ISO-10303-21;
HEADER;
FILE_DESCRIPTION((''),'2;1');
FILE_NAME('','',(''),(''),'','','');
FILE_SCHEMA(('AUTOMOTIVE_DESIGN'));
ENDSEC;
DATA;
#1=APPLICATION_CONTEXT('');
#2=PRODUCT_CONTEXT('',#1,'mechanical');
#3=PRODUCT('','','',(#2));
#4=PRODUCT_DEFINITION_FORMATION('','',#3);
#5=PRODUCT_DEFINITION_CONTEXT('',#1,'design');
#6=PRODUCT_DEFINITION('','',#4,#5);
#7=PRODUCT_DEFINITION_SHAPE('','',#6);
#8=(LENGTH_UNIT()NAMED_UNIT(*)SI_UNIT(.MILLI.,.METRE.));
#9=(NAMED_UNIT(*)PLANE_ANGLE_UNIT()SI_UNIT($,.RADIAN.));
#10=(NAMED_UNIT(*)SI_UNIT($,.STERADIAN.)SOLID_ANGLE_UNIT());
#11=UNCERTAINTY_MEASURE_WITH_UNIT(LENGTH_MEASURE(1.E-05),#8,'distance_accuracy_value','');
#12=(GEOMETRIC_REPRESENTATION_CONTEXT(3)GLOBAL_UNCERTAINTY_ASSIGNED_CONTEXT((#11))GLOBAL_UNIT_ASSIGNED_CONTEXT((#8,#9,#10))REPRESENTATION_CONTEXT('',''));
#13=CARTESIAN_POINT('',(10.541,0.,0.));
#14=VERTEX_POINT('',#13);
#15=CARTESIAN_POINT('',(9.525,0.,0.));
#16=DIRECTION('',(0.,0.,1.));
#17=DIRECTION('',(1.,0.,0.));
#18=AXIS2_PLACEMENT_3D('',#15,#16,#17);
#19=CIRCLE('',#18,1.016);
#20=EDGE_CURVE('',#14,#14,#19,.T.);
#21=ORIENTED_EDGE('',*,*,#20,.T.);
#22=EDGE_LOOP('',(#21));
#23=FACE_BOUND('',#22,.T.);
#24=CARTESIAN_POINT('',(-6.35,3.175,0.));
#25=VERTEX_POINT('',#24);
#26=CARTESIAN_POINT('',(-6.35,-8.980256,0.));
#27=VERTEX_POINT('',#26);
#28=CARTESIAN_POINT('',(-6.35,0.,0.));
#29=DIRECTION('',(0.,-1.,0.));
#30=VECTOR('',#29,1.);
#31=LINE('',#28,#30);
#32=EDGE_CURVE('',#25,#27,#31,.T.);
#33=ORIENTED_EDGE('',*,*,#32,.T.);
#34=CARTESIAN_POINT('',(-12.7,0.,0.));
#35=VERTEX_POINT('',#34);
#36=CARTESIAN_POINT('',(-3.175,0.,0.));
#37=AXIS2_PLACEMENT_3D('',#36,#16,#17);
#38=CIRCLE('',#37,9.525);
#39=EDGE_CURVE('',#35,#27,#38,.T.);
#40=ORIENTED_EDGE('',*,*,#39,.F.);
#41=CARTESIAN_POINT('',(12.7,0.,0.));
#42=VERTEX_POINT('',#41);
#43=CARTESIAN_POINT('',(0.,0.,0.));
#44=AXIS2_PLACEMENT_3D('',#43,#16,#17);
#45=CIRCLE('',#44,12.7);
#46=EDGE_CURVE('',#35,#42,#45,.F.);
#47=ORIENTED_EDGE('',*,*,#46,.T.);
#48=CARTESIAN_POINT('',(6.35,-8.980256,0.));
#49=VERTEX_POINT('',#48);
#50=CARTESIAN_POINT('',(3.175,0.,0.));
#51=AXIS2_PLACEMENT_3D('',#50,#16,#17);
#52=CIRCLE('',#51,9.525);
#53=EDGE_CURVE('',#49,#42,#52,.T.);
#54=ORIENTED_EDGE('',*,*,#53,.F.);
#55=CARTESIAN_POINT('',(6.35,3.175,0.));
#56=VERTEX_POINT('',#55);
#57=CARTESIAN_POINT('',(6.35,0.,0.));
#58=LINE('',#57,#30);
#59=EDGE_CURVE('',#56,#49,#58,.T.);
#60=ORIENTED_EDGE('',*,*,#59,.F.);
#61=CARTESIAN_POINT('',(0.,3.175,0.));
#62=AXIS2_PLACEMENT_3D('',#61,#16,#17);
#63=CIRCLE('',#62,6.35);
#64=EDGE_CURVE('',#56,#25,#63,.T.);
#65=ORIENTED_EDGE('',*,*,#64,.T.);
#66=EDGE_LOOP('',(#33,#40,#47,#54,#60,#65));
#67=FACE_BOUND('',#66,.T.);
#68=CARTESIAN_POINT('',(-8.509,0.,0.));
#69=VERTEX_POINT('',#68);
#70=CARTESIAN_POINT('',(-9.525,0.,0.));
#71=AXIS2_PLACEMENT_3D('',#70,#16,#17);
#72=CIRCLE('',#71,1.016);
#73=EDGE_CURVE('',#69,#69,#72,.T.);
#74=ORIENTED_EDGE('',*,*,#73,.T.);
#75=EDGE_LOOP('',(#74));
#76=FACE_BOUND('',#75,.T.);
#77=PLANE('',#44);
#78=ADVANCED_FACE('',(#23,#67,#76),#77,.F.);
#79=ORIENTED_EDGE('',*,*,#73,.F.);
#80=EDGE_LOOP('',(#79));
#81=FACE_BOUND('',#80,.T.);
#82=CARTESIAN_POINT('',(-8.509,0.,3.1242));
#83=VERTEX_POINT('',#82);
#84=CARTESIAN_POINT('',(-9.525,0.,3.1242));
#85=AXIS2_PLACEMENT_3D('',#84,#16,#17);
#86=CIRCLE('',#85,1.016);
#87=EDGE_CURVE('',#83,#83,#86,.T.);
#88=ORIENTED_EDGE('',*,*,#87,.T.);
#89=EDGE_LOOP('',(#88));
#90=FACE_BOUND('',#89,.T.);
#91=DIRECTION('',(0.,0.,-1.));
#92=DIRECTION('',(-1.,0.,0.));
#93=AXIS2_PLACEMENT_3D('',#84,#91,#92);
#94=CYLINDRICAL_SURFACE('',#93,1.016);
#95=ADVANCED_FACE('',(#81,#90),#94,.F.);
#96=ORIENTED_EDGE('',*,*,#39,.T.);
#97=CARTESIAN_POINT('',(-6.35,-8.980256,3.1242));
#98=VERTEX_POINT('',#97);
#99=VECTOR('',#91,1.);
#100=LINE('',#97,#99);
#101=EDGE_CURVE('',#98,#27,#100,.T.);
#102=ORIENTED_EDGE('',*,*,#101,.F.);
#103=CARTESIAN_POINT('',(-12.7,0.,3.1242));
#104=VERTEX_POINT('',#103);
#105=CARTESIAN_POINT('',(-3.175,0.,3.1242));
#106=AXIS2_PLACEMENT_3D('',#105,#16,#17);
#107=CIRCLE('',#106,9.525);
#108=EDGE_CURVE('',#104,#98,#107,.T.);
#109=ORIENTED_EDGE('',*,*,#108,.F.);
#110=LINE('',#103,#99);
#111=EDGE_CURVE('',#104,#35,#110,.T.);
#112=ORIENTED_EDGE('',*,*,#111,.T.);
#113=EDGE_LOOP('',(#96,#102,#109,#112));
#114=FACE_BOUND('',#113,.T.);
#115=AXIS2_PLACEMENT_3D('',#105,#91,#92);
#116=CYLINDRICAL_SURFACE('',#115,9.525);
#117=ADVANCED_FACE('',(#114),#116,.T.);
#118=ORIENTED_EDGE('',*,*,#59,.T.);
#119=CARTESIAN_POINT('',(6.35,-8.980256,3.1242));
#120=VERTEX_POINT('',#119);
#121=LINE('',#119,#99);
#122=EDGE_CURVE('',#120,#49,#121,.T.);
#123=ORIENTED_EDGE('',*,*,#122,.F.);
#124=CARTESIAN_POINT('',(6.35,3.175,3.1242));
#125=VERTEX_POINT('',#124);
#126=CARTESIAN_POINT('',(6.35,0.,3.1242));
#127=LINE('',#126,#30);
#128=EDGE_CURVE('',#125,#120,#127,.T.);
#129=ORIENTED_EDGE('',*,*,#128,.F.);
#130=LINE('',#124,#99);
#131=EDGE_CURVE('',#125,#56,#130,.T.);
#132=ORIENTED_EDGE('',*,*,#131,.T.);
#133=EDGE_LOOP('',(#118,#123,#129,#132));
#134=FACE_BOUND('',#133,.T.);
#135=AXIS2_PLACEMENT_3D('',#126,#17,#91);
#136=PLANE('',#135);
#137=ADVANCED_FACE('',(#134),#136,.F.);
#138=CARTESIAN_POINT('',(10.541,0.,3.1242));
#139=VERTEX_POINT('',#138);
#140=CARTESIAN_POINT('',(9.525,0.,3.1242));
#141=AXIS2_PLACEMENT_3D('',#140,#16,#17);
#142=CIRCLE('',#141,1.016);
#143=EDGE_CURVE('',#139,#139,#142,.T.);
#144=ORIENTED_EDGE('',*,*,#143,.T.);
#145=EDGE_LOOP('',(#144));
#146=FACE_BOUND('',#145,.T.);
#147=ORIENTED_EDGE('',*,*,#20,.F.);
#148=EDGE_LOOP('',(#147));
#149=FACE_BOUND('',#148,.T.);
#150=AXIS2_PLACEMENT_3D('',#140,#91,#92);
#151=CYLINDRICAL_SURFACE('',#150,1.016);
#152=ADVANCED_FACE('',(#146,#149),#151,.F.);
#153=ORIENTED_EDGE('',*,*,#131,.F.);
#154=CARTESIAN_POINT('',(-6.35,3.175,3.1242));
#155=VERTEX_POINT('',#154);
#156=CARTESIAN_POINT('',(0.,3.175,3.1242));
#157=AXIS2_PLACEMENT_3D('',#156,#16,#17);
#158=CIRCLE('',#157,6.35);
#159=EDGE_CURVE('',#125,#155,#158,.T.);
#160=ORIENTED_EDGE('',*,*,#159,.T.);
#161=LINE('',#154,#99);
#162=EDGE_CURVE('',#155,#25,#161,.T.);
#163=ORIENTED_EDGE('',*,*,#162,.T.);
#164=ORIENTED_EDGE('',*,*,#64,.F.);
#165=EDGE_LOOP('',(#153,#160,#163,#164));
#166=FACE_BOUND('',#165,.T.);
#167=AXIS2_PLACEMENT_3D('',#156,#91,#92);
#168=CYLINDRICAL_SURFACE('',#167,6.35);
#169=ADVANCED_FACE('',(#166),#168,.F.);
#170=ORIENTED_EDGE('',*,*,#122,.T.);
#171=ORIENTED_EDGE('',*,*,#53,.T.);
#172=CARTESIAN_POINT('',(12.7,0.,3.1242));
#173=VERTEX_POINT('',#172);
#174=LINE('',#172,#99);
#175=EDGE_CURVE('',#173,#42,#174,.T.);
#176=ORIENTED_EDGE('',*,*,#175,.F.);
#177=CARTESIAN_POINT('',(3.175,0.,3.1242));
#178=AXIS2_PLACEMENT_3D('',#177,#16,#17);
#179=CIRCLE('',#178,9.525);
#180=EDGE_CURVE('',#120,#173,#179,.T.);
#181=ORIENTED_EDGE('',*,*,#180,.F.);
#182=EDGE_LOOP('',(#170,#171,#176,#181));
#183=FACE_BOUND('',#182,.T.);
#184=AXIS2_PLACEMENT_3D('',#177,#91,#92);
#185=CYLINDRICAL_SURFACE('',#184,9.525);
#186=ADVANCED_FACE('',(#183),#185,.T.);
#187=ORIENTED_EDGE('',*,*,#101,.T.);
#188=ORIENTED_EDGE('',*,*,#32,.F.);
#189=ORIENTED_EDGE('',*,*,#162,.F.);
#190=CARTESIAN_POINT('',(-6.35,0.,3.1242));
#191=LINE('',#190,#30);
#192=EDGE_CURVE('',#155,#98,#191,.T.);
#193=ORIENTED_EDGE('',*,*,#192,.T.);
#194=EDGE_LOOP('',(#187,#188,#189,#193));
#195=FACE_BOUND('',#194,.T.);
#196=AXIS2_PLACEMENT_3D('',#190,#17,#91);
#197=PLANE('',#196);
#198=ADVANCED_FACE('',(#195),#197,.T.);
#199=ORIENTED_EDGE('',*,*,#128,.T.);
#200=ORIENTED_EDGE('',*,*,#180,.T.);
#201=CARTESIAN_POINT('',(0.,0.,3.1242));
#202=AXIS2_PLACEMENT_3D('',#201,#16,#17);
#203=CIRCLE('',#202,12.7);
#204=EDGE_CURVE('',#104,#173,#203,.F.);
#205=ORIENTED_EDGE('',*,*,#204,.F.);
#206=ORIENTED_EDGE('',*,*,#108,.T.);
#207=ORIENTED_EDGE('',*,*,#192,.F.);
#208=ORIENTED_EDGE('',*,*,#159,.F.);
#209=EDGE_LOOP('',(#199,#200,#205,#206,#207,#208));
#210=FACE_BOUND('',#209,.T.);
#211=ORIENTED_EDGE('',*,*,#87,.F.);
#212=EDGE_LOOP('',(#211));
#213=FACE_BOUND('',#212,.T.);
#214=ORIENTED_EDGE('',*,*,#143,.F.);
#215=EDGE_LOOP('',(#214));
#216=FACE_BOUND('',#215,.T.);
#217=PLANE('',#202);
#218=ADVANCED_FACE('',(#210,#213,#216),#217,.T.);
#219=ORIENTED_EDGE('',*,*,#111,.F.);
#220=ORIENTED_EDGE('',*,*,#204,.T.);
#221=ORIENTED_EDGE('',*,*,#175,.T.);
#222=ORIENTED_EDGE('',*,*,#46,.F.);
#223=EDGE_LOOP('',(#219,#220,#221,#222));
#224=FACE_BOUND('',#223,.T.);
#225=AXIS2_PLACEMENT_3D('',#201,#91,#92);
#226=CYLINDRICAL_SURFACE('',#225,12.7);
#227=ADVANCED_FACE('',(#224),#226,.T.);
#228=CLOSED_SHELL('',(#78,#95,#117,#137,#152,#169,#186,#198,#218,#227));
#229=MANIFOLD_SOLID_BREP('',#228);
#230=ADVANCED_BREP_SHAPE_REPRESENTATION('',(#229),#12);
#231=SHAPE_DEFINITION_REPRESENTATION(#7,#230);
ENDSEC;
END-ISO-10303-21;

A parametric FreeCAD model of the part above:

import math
import FreeCAD as App
import Part
import Sketcher
Q = App.Units.Quantity

doc = App.newDocument("Part")
body = doc.addObject("PartDesign::Body", "Body")

# Sketch on XY plane
sketch1 = doc.addObject("Sketcher::SketchObject", "Sketch")
body.addObject(sketch1)
sketch1.AttachmentSupport = (doc.XY_Plane, [""])
sketch1.MapMode = "FlatFace"
sketch1.addGeometry([
    Part.ArcOfCircle(Part.Circle(App.Vector(0, 3.2, 0), App.Vector(0, 0, 1), 6.3), math.radians(90), math.radians(180)),  # 0
    Part.ArcOfCircle(Part.Circle(App.Vector(0, 3.2, 0), App.Vector(0, 0, 1), 6.3), math.radians(0), math.radians(90)),  # 1
    Part.LineSegment(App.Vector(6.3, 3.2, 0), App.Vector(6.3, -9, 0)),  # 2
    Part.ArcOfCircle(Part.Circle(App.Vector(3.2, 0, 0), App.Vector(0, 0, 1), 9.5), math.radians(-71), math.radians(0)),  # 3
    Part.ArcOfCircle(Part.Circle(App.Vector(0, 0, 0), App.Vector(0, 0, 1), 12.7), math.radians(0), math.radians(90)),  # 4
    Part.ArcOfCircle(Part.Circle(App.Vector(0, 0, 0), App.Vector(0, 0, 1), 12.7), math.radians(90), math.radians(180)),  # 5
    Part.ArcOfCircle(Part.Circle(App.Vector(-3.2, 0, 0), App.Vector(0, 0, 1), 9.5), math.radians(-180), math.radians(-109)),  # 6
    Part.LineSegment(App.Vector(-6.3, -9, 0), App.Vector(-6.3, 3.2, 0)),  # 7
    Part.Circle(App.Vector(-9.5, 0, 0), App.Vector(0, 0, 1), 1),  # 8
    Part.Circle(App.Vector(9.5, 0, 0), App.Vector(0, 0, 1), 1),  # 9
], False)
sketch1.addConstraint([
    Sketcher.Constraint("Tangent", 0, 1, 1, 2),
    Sketcher.Constraint("Tangent", 1, 1, 2, 1),
    Sketcher.Constraint("Coincident", 2, 2, 3, 1),
    Sketcher.Constraint("Tangent", 3, 2, 4, 1),
    Sketcher.Constraint("Tangent", 4, 2, 5, 1),
    Sketcher.Constraint("Tangent", 5, 2, 6, 1),
    Sketcher.Constraint("Coincident", 6, 2, 7, 1),
    Sketcher.Constraint("Tangent", 7, 2, 0, 2),
    Sketcher.Constraint("Vertical", 2),
    Sketcher.Constraint("Vertical", 7),
    Sketcher.Constraint("Coincident", 4, 3, -1, 1),
    Sketcher.Constraint("Equal", 0, 1),
    Sketcher.Constraint("Equal", 4, 5),
    Sketcher.Constraint("Equal", 3, 6),
    Sketcher.Constraint("Equal", 8, 9),
    Sketcher.Constraint("Symmetric", 8, 3, 9, 3, -1, 1),
    Sketcher.Constraint("Symmetric", 2, 2, 6, 2, -2),
    Sketcher.Constraint("PointOnObject", 3, 3, -1),
    Sketcher.Constraint("PointOnObject", 8, 3, -1),
    Sketcher.Constraint("PointOnObject", 0, 1, -2),
    Sketcher.Constraint("PointOnObject", 4, 2, -2),
    Sketcher.Constraint("Radius", 4, Q("0.5 in")),
    Sketcher.Constraint("Diameter", 8, Q("0.08 in")),
    Sketcher.Constraint("Radius", 0, Q("0.25 in")),
    Sketcher.Constraint("Radius", 3, Q("0.375 in")),
    Sketcher.Constraint("DistanceX", 8, 3, 6, 3, Q("0.25 in")),
    Sketcher.Constraint("DistanceY", -1, 1, 0, 3, Q("0.125 in")),
])
pad1 = doc.addObject("PartDesign::Pad", "Pad")
body.addObject(pad1)
pad1.Profile = sketch1
pad1.Length = Q("0.123 in")

doc.recompute()
